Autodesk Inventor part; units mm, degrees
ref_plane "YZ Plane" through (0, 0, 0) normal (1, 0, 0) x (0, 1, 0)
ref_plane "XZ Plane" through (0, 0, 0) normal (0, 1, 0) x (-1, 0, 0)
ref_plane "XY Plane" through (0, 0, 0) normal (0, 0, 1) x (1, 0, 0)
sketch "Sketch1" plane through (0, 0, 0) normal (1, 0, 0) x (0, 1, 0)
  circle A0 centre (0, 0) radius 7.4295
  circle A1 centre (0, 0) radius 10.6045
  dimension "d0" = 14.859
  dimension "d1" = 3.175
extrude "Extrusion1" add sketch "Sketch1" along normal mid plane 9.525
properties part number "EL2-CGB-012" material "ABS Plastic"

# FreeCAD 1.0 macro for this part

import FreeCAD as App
import Part
import Sketcher

V = App.Vector
Q = App.Units.Quantity

doc = App.newDocument("Part")
body = doc.addObject("PartDesign::Body", "Body")

sketch1 = doc.addObject("Sketcher::SketchObject", "Sketch")
body.addObject(sketch1)
sketch1.AttachmentSupport = (doc.YZ_Plane, [""])
sketch1.MapMode = "FlatFace"
sketch1.addGeometry(Part.Circle(V(0, 0, 0), V(0, 0, 1), 11), False)
sketch1.addGeometry(Part.Circle(V(0, 0, 0), V(0, 0, 1), 7), False)
sketch1.addConstraint(Sketcher.Constraint("Coincident", 0, 3, -1, 1))
sketch1.addConstraint(Sketcher.Constraint("Coincident", 1, 3, -1, 1))
sketch1.addConstraint(Sketcher.Constraint("Diameter", 1, Q("0.585 in")))
sketch1.addConstraint(Sketcher.Constraint("Diameter", 0, Q("0.835 in")))
pad1 = doc.addObject("PartDesign::Pad", "Pad")
body.addObject(pad1)
pad1.Profile = sketch1
pad1.Length = Q("0.375 in")
pad1.Midplane = True

doc.recompute()
